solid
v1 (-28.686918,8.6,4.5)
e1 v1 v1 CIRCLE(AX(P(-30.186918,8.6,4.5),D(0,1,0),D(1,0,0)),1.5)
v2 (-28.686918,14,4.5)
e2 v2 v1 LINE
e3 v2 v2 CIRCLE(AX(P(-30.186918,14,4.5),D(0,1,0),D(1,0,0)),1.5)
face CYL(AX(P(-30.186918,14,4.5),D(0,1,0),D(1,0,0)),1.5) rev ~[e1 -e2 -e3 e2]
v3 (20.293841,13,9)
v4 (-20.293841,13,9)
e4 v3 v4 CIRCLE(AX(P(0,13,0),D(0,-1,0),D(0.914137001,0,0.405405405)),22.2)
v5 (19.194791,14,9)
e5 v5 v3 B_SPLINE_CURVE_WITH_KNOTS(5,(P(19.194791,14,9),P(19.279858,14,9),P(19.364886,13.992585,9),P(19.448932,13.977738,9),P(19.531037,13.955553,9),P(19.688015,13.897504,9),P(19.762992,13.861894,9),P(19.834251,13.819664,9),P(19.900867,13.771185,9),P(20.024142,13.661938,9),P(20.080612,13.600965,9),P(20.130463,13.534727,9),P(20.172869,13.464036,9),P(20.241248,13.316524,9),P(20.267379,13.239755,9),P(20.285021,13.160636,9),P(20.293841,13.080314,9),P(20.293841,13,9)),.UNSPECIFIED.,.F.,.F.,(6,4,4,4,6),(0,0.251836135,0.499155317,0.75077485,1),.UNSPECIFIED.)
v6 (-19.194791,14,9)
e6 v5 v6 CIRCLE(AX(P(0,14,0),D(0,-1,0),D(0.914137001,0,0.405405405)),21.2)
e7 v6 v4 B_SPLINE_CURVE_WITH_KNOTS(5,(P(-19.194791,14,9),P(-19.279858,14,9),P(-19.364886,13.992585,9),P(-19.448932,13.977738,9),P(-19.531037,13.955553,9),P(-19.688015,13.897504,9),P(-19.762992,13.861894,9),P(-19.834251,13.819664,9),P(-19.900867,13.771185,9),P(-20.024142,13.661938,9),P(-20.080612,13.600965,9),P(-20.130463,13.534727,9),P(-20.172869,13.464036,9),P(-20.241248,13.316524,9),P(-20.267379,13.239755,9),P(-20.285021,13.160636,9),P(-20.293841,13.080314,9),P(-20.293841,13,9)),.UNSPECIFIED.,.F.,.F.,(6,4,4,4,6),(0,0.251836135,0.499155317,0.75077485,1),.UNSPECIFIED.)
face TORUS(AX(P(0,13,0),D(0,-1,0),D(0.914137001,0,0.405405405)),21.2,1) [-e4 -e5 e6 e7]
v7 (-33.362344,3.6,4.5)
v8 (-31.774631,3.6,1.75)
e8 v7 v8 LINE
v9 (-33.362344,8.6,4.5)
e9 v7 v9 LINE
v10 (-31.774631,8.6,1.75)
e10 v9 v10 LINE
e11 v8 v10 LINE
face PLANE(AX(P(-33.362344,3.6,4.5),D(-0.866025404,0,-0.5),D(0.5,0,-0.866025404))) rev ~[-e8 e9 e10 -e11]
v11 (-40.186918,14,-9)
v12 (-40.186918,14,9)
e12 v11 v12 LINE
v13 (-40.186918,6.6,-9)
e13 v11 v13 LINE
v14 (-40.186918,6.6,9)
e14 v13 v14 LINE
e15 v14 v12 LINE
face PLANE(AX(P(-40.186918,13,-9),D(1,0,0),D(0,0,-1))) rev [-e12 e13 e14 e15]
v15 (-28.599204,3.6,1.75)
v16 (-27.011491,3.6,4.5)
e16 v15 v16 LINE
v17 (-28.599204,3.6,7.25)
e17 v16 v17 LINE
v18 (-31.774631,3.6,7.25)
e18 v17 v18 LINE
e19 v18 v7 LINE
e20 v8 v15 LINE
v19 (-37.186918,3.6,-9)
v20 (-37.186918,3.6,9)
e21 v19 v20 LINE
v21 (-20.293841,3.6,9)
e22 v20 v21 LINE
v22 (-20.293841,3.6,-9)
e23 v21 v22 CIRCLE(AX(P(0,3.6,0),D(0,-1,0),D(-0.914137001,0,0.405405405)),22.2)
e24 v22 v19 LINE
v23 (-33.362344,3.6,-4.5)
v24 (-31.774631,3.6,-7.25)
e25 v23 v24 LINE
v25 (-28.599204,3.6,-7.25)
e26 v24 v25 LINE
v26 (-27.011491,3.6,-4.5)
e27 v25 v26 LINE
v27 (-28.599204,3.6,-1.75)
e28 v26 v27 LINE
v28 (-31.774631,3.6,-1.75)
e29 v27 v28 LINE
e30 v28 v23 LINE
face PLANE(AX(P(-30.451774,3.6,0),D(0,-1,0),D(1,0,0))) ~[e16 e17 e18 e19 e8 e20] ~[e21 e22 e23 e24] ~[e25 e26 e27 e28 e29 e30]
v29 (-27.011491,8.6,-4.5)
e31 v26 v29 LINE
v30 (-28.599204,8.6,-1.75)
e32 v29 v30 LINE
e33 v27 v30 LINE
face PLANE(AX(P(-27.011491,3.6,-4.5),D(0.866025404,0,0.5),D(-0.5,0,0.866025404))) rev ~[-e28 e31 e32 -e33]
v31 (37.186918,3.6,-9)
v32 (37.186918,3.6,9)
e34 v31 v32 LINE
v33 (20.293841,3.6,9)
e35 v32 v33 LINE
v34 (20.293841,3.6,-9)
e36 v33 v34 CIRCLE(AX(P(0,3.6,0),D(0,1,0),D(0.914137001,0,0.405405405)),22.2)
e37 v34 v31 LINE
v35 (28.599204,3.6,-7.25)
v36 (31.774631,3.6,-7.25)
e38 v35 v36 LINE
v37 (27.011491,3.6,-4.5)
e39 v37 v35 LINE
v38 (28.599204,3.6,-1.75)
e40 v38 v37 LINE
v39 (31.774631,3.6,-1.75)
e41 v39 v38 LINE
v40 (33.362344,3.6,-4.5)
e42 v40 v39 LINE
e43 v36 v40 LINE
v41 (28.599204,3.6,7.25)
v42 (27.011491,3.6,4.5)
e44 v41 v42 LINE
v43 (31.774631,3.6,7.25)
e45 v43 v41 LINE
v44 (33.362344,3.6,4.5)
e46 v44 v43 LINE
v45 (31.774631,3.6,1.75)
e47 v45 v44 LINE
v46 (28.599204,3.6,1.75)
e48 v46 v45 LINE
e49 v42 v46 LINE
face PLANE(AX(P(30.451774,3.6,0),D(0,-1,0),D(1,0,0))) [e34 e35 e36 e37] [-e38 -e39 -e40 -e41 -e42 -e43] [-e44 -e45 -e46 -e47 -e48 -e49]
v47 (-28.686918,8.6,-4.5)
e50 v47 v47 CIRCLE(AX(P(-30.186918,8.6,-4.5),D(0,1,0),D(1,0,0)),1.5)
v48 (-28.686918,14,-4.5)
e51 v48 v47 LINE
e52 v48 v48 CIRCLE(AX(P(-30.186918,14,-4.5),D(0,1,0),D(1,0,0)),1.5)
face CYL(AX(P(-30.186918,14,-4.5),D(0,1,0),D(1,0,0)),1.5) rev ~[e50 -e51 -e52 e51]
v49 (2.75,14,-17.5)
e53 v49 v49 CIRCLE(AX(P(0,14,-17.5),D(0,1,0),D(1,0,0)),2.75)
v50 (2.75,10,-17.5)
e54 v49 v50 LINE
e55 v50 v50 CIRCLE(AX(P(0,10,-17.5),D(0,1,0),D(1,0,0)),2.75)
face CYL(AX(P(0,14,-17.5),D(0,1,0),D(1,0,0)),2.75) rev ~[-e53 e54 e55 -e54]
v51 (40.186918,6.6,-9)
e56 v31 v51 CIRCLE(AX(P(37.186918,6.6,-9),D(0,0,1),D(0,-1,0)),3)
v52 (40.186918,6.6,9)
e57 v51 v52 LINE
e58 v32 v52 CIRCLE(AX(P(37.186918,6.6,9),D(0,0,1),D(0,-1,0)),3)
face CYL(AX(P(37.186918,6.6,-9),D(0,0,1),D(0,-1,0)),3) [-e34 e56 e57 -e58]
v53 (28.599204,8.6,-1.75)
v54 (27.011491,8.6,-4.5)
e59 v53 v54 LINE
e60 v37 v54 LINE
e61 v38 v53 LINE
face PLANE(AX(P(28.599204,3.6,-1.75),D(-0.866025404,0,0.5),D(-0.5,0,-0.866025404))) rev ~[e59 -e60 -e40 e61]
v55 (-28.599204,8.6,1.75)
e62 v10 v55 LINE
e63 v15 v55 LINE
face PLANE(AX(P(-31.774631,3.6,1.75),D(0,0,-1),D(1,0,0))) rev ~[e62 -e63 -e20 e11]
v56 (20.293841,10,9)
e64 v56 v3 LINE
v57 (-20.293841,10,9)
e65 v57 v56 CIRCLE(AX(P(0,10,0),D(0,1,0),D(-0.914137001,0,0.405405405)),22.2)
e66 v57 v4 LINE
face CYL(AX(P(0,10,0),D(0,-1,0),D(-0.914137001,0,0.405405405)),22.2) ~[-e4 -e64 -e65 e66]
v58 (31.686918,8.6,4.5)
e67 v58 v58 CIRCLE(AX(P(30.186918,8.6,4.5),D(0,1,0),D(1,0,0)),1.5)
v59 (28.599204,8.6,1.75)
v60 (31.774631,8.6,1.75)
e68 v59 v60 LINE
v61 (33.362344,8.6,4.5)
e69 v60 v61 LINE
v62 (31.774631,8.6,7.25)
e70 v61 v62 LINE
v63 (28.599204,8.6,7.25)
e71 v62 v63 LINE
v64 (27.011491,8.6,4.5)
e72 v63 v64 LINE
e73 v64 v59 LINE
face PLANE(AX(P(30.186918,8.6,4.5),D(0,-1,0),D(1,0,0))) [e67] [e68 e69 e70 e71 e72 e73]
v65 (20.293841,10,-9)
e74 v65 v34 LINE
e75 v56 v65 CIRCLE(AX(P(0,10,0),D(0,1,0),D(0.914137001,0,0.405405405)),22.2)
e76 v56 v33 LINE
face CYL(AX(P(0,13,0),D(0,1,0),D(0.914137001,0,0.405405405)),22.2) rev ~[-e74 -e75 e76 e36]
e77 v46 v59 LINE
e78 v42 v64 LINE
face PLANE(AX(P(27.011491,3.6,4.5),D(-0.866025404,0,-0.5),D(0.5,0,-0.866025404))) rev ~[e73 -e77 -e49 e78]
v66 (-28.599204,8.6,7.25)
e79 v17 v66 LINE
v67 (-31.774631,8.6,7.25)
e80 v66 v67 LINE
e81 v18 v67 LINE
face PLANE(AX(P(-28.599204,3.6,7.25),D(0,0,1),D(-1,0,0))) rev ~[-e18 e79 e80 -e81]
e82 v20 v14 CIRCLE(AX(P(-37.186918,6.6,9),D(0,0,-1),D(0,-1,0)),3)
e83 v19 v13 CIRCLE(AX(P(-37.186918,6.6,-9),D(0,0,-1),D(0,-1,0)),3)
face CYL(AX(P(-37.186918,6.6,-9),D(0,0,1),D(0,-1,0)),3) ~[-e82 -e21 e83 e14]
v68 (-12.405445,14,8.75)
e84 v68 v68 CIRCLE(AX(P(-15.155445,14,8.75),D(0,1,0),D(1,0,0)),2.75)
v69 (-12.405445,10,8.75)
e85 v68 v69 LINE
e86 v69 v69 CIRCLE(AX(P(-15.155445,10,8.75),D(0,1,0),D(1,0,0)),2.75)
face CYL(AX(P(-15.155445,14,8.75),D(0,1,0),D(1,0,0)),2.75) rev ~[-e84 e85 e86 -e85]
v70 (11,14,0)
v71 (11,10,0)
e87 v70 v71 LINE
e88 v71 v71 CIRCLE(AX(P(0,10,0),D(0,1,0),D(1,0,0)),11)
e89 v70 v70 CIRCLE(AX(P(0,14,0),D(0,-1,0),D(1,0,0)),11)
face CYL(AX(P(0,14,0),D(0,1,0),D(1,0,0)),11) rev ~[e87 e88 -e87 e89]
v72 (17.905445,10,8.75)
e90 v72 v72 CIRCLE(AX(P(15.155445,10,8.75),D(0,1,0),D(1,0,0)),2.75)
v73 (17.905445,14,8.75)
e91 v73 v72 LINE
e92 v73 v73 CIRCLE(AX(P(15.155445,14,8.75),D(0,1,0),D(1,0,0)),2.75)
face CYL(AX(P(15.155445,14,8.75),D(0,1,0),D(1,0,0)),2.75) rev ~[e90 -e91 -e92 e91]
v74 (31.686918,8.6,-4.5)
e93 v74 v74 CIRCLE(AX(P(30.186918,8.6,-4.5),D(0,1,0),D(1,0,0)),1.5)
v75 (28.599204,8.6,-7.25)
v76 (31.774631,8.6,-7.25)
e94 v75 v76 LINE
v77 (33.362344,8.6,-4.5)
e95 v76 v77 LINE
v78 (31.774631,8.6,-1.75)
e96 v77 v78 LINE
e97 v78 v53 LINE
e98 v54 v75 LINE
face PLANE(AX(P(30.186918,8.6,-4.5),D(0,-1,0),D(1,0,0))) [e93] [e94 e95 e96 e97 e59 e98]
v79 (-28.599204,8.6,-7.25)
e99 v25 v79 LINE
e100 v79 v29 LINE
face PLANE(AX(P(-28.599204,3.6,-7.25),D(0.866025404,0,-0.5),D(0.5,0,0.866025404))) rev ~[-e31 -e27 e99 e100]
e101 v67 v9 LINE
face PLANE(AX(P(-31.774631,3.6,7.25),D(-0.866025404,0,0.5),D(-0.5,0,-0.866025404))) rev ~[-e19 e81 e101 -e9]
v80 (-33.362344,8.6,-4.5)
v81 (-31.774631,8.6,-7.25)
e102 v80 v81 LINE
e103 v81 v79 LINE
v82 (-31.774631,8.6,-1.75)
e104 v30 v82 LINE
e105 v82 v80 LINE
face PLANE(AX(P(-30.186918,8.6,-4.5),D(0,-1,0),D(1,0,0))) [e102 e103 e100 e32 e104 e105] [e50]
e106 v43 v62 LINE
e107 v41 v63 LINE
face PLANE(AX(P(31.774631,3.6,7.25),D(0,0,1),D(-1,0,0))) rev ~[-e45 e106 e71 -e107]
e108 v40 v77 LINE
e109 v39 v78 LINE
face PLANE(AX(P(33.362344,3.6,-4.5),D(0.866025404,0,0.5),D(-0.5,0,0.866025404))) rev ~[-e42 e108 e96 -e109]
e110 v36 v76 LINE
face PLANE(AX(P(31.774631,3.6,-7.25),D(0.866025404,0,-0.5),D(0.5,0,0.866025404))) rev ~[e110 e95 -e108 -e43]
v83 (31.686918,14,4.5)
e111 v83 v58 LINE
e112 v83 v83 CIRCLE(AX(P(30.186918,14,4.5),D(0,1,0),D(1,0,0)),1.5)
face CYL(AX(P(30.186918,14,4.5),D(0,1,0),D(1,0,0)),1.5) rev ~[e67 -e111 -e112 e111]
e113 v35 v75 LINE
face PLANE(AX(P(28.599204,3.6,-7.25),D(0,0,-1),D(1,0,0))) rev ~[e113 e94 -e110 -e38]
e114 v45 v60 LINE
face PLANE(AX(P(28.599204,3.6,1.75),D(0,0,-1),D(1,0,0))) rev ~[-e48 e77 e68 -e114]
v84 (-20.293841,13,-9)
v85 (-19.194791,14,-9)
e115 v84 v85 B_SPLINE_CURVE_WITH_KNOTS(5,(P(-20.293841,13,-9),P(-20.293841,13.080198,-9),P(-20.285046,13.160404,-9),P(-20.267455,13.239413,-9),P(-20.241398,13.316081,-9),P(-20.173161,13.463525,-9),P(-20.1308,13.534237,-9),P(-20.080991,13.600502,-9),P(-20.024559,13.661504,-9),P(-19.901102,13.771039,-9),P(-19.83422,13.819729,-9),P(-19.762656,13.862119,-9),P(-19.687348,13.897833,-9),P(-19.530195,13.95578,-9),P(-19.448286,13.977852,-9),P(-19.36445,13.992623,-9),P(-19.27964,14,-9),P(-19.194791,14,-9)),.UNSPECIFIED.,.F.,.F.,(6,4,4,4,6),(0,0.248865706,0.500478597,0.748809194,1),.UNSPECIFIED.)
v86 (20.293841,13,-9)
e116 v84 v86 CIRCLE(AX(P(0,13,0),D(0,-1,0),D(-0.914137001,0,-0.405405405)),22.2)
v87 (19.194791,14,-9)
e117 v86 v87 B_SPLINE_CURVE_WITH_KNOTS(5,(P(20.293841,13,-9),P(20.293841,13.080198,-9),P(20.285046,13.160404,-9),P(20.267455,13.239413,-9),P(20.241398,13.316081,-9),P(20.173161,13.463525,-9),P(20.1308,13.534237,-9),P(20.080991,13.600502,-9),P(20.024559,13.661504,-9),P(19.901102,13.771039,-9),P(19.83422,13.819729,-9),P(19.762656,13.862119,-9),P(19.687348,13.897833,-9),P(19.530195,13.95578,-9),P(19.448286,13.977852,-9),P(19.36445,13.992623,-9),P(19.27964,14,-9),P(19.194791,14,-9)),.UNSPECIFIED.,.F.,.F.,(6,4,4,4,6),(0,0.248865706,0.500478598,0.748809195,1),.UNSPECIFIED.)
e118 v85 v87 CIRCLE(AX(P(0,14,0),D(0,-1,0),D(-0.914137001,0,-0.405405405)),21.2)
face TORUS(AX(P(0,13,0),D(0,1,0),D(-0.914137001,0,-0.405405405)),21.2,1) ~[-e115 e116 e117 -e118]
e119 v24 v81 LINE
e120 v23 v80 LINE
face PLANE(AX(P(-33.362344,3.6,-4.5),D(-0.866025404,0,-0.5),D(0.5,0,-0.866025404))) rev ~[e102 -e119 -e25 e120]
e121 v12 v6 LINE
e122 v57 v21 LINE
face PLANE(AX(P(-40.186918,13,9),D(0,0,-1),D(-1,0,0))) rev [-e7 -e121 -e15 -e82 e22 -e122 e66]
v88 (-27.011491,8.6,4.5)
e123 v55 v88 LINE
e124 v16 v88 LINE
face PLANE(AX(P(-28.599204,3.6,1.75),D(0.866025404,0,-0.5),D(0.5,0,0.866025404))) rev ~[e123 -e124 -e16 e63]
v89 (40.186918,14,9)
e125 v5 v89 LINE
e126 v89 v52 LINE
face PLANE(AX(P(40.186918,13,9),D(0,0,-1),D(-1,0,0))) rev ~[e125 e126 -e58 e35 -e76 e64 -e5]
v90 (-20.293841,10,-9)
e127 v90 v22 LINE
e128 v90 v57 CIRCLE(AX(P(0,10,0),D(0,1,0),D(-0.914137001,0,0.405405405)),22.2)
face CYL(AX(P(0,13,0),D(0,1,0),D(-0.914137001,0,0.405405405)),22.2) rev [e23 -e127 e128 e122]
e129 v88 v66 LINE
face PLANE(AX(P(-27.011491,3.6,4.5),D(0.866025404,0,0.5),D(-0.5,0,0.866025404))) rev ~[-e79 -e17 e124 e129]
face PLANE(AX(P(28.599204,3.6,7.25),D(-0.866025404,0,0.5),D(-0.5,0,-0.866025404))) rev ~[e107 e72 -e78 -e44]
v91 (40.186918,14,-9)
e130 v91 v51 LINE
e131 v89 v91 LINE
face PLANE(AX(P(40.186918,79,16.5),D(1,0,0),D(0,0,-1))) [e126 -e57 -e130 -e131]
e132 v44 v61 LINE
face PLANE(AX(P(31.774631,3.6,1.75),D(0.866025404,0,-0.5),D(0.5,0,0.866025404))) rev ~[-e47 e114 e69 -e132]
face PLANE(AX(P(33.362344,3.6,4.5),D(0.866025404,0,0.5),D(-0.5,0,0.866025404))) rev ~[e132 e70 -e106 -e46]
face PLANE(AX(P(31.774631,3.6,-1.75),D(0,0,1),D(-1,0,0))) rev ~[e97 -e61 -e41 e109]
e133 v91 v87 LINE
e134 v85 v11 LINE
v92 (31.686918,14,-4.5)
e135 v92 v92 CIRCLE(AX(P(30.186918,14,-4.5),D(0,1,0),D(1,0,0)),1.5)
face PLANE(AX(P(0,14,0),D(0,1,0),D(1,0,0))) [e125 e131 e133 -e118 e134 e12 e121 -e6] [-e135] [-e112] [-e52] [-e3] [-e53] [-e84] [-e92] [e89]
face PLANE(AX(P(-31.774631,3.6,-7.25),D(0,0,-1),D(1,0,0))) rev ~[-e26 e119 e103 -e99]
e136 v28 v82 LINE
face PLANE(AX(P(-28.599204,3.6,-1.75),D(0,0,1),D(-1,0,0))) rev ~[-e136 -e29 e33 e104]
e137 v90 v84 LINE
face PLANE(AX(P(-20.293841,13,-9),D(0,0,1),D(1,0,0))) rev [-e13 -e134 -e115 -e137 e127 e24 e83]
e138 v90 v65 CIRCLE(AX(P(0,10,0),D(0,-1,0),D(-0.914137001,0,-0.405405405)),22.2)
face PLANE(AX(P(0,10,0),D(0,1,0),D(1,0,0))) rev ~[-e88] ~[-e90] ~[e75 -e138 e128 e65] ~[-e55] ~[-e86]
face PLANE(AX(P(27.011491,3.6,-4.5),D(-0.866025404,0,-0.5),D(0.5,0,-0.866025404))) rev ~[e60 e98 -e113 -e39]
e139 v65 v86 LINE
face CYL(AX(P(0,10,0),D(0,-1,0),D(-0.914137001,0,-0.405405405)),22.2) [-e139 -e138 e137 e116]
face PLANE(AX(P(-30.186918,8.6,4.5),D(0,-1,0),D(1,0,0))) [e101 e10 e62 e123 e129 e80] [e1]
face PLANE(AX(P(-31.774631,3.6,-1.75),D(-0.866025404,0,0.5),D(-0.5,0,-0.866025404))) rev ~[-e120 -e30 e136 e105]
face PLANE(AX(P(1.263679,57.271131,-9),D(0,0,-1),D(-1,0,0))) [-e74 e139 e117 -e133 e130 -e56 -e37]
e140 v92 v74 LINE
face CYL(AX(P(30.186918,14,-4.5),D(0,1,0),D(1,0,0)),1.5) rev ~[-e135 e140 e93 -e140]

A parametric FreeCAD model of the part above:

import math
import FreeCAD as App
import Part
import Sketcher
Q = App.Units.Quantity


def edges_at(feature, points):
    """Names of the edges that pass closest to the given points."""
    edges = feature.Shape.Edges
    near = lambda p: min(range(len(edges)), key=lambda i: edges[i].distToShape(Part.Vertex(*p))[0])
    return sorted({f"Edge{near(p) + 1}" for p in points})


def add_polygon(sketch, points):
    """Adds a closed chain of lines whose ends are joined by coincident constraints."""
    first, n = sketch.GeometryCount, len(points)
    for a, b in zip(points, points[1:] + points[:1]):
        sketch.addGeometry(Part.LineSegment(App.Vector(*a, 0), App.Vector(*b, 0)), False)
    for i in range(n):
        sketch.addConstraint(Sketcher.Constraint("Coincident", first + i, 2, first + (i + 1) % n, 1))

doc = App.newDocument("Part")
body = doc.addObject("PartDesign::Body", "Body")

sketch1 = body.newObject("Sketcher::SketchObject", "Sketch")
sketch1.AttachmentSupport = (doc.getObject("XZ_Plane"), [""])
sketch1.MapMode = "FlatFace"
sketch1.addGeometry([
    Part.Circle(App.Vector(0, 0, 0), App.Vector(0, 0, 1), 17),
    Part.Circle(App.Vector(0, 0, 0), App.Vector(0, 0, 1), 12),
], False)
sketch1.addConstraint([
    Sketcher.Constraint("Coincident", 0, 3, -1, 1),
    Sketcher.Constraint("Coincident", 1, 3, -1, 1),
    Sketcher.Constraint("Diameter", 0, Q("34.9 mm")),
    Sketcher.Constraint("Diameter", 1, Q("24.9 mm")),
])
pad1 = body.newObject("PartDesign::Pad", "Pad")
pad1.Profile = sketch1
pad1.Length = 8
pad1.Reversed = True

sketch2 = body.newObject("Sketcher::SketchObject", "Sketch001")
sketch2.AttachmentSupport = (doc.getObject("XZ_Plane"), [""])
sketch2.MapMode = "FlatFace"
sketch2.AttachmentOffset = App.Placement(App.Vector(0, 0, -8), App.Rotation())
sketch2.addGeometry([
    Part.Circle(App.Vector(0, 0, 0), App.Vector(0, 0, 1), 20),
    Part.Circle(App.Vector(0, 0, 0), App.Vector(0, 0, 1), 12),
], False)
sketch2.addConstraint([
    Sketcher.Constraint("Coincident", 0, 3, -1, 1),
    Sketcher.Constraint("Coincident", 1, 3, -1, 1),
    Sketcher.Constraint("Diameter", 0, Q("40 mm")),
    Sketcher.Constraint("Diameter", 1, Q("24.9 mm")),
])
pad2 = body.newObject("PartDesign::Pad", "Pad001")
pad2.Profile = sketch2
pad2.Length = 2
pad2.Reversed = True

sketch3 = body.newObject("Sketcher::SketchObject", "Sketch002")
sketch3.AttachmentSupport = (doc.getObject("XZ_Plane"), [""])
sketch3.MapMode = "FlatFace"
sketch3.AttachmentOffset = App.Placement(App.Vector(0, 0, -10), App.Rotation())
sketch3.addGeometry([
    Part.Circle(App.Vector(0, 0, 0), App.Vector(0, 0, 1), 32),
    Part.Circle(App.Vector(0, 0, 0), App.Vector(0, 0, 1), 12),
], False)
sketch3.addConstraint([
    Sketcher.Constraint("Coincident", 0, 3, -1, 1),
    Sketcher.Constraint("Coincident", 1, 3, -1, 1),
    Sketcher.Constraint("Diameter", 0, Q("65 mm")),
    Sketcher.Constraint("Diameter", 1, Q("24.9 mm")),
])
pad3 = body.newObject("PartDesign::Pad", "Pad002")
pad3.Profile = sketch3
pad3.Length = 4
pad3.Reversed = True
doc.recompute()

fillet = body.newObject("PartDesign::Fillet", "Fillet")
fillet.Base = (pad3, edges_at(pad3, [(-32.5, 14, 0)]))
fillet.Radius = 1

sketch4 = body.newObject("Sketcher::SketchObject", "Sketch003")
sketch4.AttachmentSupport = (doc.getObject("XZ_Plane"), [""])
sketch4.MapMode = "FlatFace"
sketch4.AttachmentOffset = App.Placement(App.Vector(0, 0, -10), App.Rotation())
add_polygon(sketch4, [(30, -9), (30, 9), (40, 9), (40, -9)])
add_polygon(sketch4, [(-40, -9), (-40, 9), (-30, 9), (-30, -9)])
sketch4.addConstraint([
    Sketcher.Constraint("Vertical", 0),
    Sketcher.Constraint("Horizontal", 1),
    Sketcher.Constraint("Vertical", 2),
    Sketcher.Constraint("Horizontal", 3),
    Sketcher.Constraint("Vertical", 4),
    Sketcher.Constraint("Horizontal", 5),
    Sketcher.Constraint("Vertical", 6),
    Sketcher.Constraint("Horizontal", 7),
    Sketcher.Constraint("Symmetric", 2, 2, 4, 2, -1, 1),
    Sketcher.Constraint("Symmetric", 0, 2, 6, 2, -1, 1),
    Sketcher.Constraint("Horizontal", 1, 2, 4, 2),
    Sketcher.Constraint("DistanceX", 1, 1, 1, 2, Q("10 mm")),
    Sketcher.Constraint("DistanceY", 0, 1, 0, 2, Q("18 mm")),
    Sketcher.Constraint("DistanceX", -1, 1, 0, 2, Q("30.186918 mm")),
])
pad4 = body.newObject("PartDesign::Pad", "Pad003")
pad4.Profile = sketch4
pad4.Length = 4
pad4.Reversed = True

sketch5 = body.newObject("Sketcher::SketchObject", "Sketch004")
sketch5.AttachmentSupport = (doc.getObject("XZ_Plane"), [""])
sketch5.MapMode = "FlatFace"
sketch5.AttachmentOffset = App.Placement(App.Vector(0, 0, -14), App.Rotation())
add_polygon(sketch5, [(-40, -9), (-40, 9), (-34, 9), (-34, -9)])
add_polygon(sketch5, [(34, -9), (34, 9), (40, 9), (40, -9)])
sketch5.addConstraint([
    Sketcher.Constraint("Vertical", 0),
    Sketcher.Constraint("Horizontal", 1),
    Sketcher.Constraint("Vertical", 2),
    Sketcher.Constraint("Horizontal", 3),
    Sketcher.Constraint("Vertical", 4),
    Sketcher.Constraint("Horizontal", 5),
    Sketcher.Constraint("Vertical", 6),
    Sketcher.Constraint("Horizontal", 7),
    Sketcher.Constraint("Symmetric", 2, 2, 4, 2, -1, 1),
    Sketcher.Constraint("Symmetric", 0, 2, 6, 2, -1, 1),
    Sketcher.Constraint("Horizontal", 1, 2, 4, 2),
    Sketcher.Constraint("DistanceX", 1, 1, 1, 2, Q("6 mm")),
    Sketcher.Constraint("DistanceY", 0, 1, 0, 2, Q("18 mm")),
    Sketcher.Constraint("DistanceX", 0, 2, -1, 1, Q("40.186918 mm")),
])
pad5 = body.newObject("PartDesign::Pad", "Pad004")
pad5.Profile = sketch5
pad5.Type = "TwoLengths"
pad5.Length = 75
pad5.Length2 = 4
pad5.Reversed = True

sketch6 = body.newObject("Sketcher::SketchObject", "Sketch005")
sketch6.AttachmentSupport = (doc.getObject("YZ_Plane"), [""])
sketch6.MapMode = "FlatFace"
sketch6.AttachmentOffset = App.Placement(App.Vector(0, 0, 34.186918), App.Rotation())
sketch6.addGeometry(Part.Circle(App.Vector(79, 0, 0), App.Vector(0, 0, 1), 5), False)
sketch6.addConstraint([
    Sketcher.Constraint("PointOnObject", 0, 3, -1),
    Sketcher.Constraint("Diameter", 0, Q("10.1 mm")),
    Sketcher.Constraint("DistanceX", -1, 1, 0, 3, Q("79 mm")),
])
pocket1 = body.newObject("PartDesign::Pocket", "Pocket")
pocket1.Profile = sketch6
pocket1.Type = "ThroughAll"
pocket1.Midplane = True

sketch7 = body.newObject("Sketcher::SketchObject", "Sketch006")
sketch7.AttachmentSupport = (doc.getObject("XY_Plane"), [""])
sketch7.MapMode = "FlatFace"
sketch7.AttachmentOffset = App.Placement(App.Vector(0, 0, -9), App.Rotation())
add_polygon(sketch7, [(-34, 76), (-34, 66), (-40, 66), (-40, 76)])
sketch7.addConstraint([
    Sketcher.Constraint("Vertical", 0),
    Sketcher.Constraint("Horizontal", 1),
    Sketcher.Constraint("Vertical", 2),
    Sketcher.Constraint("Horizontal", 3),
    Sketcher.Constraint("DistanceX", 1, 2, 1, 1, Q("6 mm")),
    Sketcher.Constraint("DistanceY", 0, 2, 0, 1, Q("10 mm")),
    Sketcher.Constraint("DistanceY", -1, 1, 0, 2, Q("65.95 mm")),
    Sketcher.Constraint("DistanceX", 0, 2, -1, 1, Q("34.186918 mm")),
])
pad6 = body.newObject("PartDesign::Pad", "Pad005")
pad6.Profile = sketch7
pad6.Type = "TwoLengths"
pad6.Length = 15
pad6.Length2 = 32.85
pad6.Reversed = True

sketch8 = body.newObject("Sketcher::SketchObject", "Sketch007")
sketch8.AttachmentSupport = (doc.getObject("YZ_Plane"), [""])
sketch8.MapMode = "FlatFace"
sketch8.AttachmentOffset = App.Placement(App.Vector(0, 0, -34.186918), App.Rotation())
sketch8.addGeometry([
    Part.Circle(App.Vector(71, 17.5, 0), App.Vector(0, 0, 1), 1.6),
    Part.Circle(App.Vector(71, -17.5, 0), App.Vector(0, 0, 1), 1.6),
], False)
sketch8.addConstraint([
    Sketcher.Constraint("Symmetric", 0, 3, 1, 3, -1),
    Sketcher.Constraint("DistanceX", -1, 1, 0, 3, Q("71 mm")),
    Sketcher.Constraint("DistanceY", 1, 3, 0, 3, Q("35 mm")),
    Sketcher.Constraint("Diameter", 0, Q("3.258441 mm")),
    Sketcher.Constraint("Diameter", 1, Q("3.160518 mm")),
])
pocket2 = body.newObject("PartDesign::Pocket", "Pocket001")
pocket2.Profile = sketch8
pocket2.Length = 10

sketch9 = body.newObject("Sketcher::SketchObject", "Sketch008")
sketch9.AttachmentSupport = (doc.getObject("YZ_Plane"), [""])
sketch9.MapMode = "FlatFace"
sketch9.AttachmentOffset = App.Placement(App.Vector(0, 0, -34.186918), App.Rotation())
sketch9.addGeometry(Part.Circle(App.Vector(79, 0, 0), App.Vector(0, 0, 1), 5), False)
sketch9.addConstraint([
    Sketcher.Constraint("PointOnObject", 0, 3, -1),
    Sketcher.Constraint("Diameter", 0, Q("10.1 mm")),
    Sketcher.Constraint("DistanceX", -1, 1, 0, 3, Q("79 mm")),
])
pocket3 = body.newObject("PartDesign::Pocket", "Pocket002")
pocket3.Profile = sketch9
pocket3.Type = "ThroughAll"
pocket3.Midplane = True

sketch10 = body.newObject("Sketcher::SketchObject", "Sketch009")
sketch10.AttachmentSupport = (doc.getObject("YZ_Plane"), [""])
sketch10.MapMode = "FlatFace"
sketch10.AttachmentOffset = App.Placement(App.Vector(0, 0, 34.186918), App.Rotation())
add_polygon(sketch10, [(17.2, -4.9), (14, -4.9), (14, 4.9), (17.2, 4.9)])
sketch10.addConstraint([
    Sketcher.Constraint("Horizontal", 0),
    Sketcher.Constraint("Vertical", 1),
    Sketcher.Constraint("Horizontal", 2),
    Sketcher.Constraint("Vertical", 3),
    Sketcher.Constraint("DistanceX", -1, 1, 0, 2, Q("14 mm")),
    Sketcher.Constraint("DistanceY", 0, 2, -1, 1, Q("4.891298 mm")),
    Sketcher.Constraint("DistanceY", -1, 1, 1, 2, Q("4.891298 mm")),
    Sketcher.Constraint("DistanceX", 0, 2, 0, 1, Q("3.234518 mm")),
])
pocket4 = body.newObject("PartDesign::Pocket", "Pocket003")
pocket4.Profile = sketch10
pocket4.Type = "ThroughAll"
pocket4.Midplane = True
doc.recompute()

fillet2 = body.newObject("PartDesign::Fillet", "Fillet001")
fillet2.Base = (pocket4, edges_at(pocket4, [
    (-37.187, 65.95, 23.85),
    (-37.187, 75.95, 23.85),
    (-37.187, 65.95, -24),
    (-37.187, 75.95, -24),
    (-37.187, 89, -9),
    (-37.187, 89, 9),
]))
fillet2.Radius = 3
doc.recompute()

fillet3 = body.newObject("PartDesign::Fillet", "Fillet002")
fillet3.Base = (fillet2, edges_at(fillet2, [(40.187, 10, 0), (-40.187, 10, 0)]))
fillet3.Radius = 3

sketch11 = body.newObject("Sketcher::SketchObject", "Sketch010")
sketch11.AttachmentSupport = (doc.getObject("YZ_Plane"), [""])
sketch11.MapMode = "FlatFace"
sketch11.AttachmentOffset = App.Placement(App.Vector(0, 0, 40.186918), App.Rotation())
add_polygon(sketch11, [(10, 67), (-14, 67), (-14, -42), (10, -42)])
sketch11.addConstraint([
    Sketcher.Constraint("Horizontal", 0),
    Sketcher.Constraint("Vertical", 1),
    Sketcher.Constraint("Horizontal", 2),
    Sketcher.Constraint("Vertical", 3),
    Sketcher.Constraint("DistanceX", -1, 1, 2, 2, Q("10 mm")),
    Sketcher.Constraint("DistanceY", 1, 2, 1, 1, Q("108.791398 mm")),
    Sketcher.Constraint("DistanceX", 0, 2, 0, 1, Q("24.041848 mm")),
    Sketcher.Constraint("DistanceY", 1, 2, -1, 1, Q("41.892781 mm")),
])
pocket5 = body.newObject("PartDesign::Pocket", "Pocket004")
pocket5.Profile = sketch11
pocket5.Length = 110.678

sketch12 = body.newObject("Sketcher::SketchObject", "Sketch011")
sketch12.AttachmentSupport = (doc.getObject("XZ_Plane"), [""])
sketch12.MapMode = "FlatFace"
sketch12.AttachmentOffset = App.Placement(App.Vector(0, 0, -14), App.Rotation())
sketch12.addGeometry(Part.Circle(App.Vector(0, 0, 0), App.Vector(0, 0, 1), 22), False)
sketch12.addConstraint([
    Sketcher.Constraint("Coincident", 0, 3, -1, 1),
    Sketcher.Constraint("Diameter", 0, Q("44 mm")),
])
pocket6 = body.newObject("PartDesign::Pocket", "Pocket005")
pocket6.Profile = sketch12
pocket6.Length = 4
pocket6.Reversed = True

sketch13 = body.newObject("Sketcher::SketchObject", "Sketch012")
sketch13.AttachmentSupport = (doc.getObject("XZ_Plane"), [""])
sketch13.MapMode = "FlatFace"
sketch13.AttachmentOffset = App.Placement(App.Vector(0, 0, -14), App.Rotation())
sketch13.addGeometry([
    Part.Circle(App.Vector(0, 0, 0), App.Vector(0, 0, 1), 22),
    Part.Circle(App.Vector(-15.2, 8.8, 0), App.Vector(0, 0, 1), 2.8),
    Part.Circle(App.Vector(15.2, 8.8, 0), App.Vector(0, 0, 1), 2.8),
    Part.Circle(App.Vector(0, 0, 0), App.Vector(0, 0, 1), 11),
    Part.Circle(App.Vector(0, -17.5, 0), App.Vector(0, 0, 1), 2.8),
], False)
sketch13.addConstraint([
    Sketcher.Constraint("Coincident", 0, 3, -1, 1),
    Sketcher.Constraint("Coincident", 3, 3, -1, 1),
    Sketcher.Constraint("Equal", 1, 2),
    Sketcher.Constraint("Equal", 2, 4),
    Sketcher.Constraint("Symmetric", 1, 3, 2, 3, -2),
    Sketcher.Constraint("PointOnObject", 4, 3, -2),
    Sketcher.Constraint("Diameter", 0, Q("44 mm")),
    Sketcher.Constraint("Diameter", 3, Q("22 mm")),
    Sketcher.Constraint("Diameter", 1, Q("5.5 mm")),
    Sketcher.Constraint("DistanceY", 4, 3, -1, 1, Q("17.5 mm")),
    Sketcher.Constraint("DistanceY", -1, 1, 1, 3, Q("8.75 mm")),
    Sketcher.Constraint("DistanceX", 1, 3, 2, 3, Q("30.310889 mm")),
])
pad7 = body.newObject("PartDesign::Pad", "Pad006")
pad7.Profile = sketch13
pad7.Length = 4
doc.recompute()

fillet4 = body.newObject("PartDesign::Fillet", "Fillet003")
fillet4.Base = (pad7, edges_at(pad7, [(37.187, 89, 9), (37.187, 89, -9)]))
fillet4.Radius = 3

sketch14 = body.newObject("Sketcher::SketchObject", "Sketch013")
sketch14.AttachmentSupport = (doc.getObject("XZ_Plane"), [""])
sketch14.MapMode = "FlatFace"
sketch14.AttachmentOffset = App.Placement(App.Vector(0, 0, -10), App.Rotation())
sketch14.addGeometry([
    Part.LineSegment(App.Vector(-31, 9, 0), App.Vector(-20, 9, 0)),
    Part.ArcOfCircle(Part.Circle(App.Vector(0, 0, 0), App.Vector(0, 0, 1), 22), math.radians(24), math.radians(156)),
    Part.LineSegment(App.Vector(20, 9, 0), App.Vector(31, 9, 0)),
    Part.ArcOfCircle(Part.Circle(App.Vector(0, 0, 0), App.Vector(0, 0, 1), 32), math.radians(16), math.radians(164)),
], False)
sketch14.addConstraint([
    Sketcher.Constraint("Coincident", 0, 2, 1, 2),
    Sketcher.Constraint("Coincident", 1, 1, 2, 1),
    Sketcher.Constraint("Coincident", 2, 2, 3, 1),
    Sketcher.Constraint("Coincident", 3, 2, 0, 1),
    Sketcher.Constraint("Horizontal", 0),
    Sketcher.Constraint("Horizontal", 2),
    Sketcher.Constraint("Coincident", 1, 3, -1, 1),
    Sketcher.Constraint("Coincident", 3, 3, -1, 1),
    Sketcher.Constraint("Horizontal", 0, 2, 1, 1),
    Sketcher.Constraint("Radius", 1, Q("22.2 mm")),
    Sketcher.Constraint("Radius", 3, Q("32.5 mm")),
    Sketcher.Constraint("DistanceY", -1, 1, 0, 2, Q("9 mm")),
])
pocket7 = body.newObject("PartDesign::Pocket", "Pocket006")
pocket7.Profile = sketch14
pocket7.Length = 5
doc.recompute()

mirrored = body.newObject("PartDesign::Mirrored", "Mirrored")
mirrored.Originals = [pocket7]
mirrored.MirrorPlane = (doc.getObject("XY_Plane"), [""])
body.Tip = mirrored
doc.recompute()

fillet5 = body.newObject("PartDesign::Fillet", "Fillet004")
fillet5.Base = (mirrored, edges_at(mirrored, [(0, 14, 22.2), (0, 14, -22.2)]))
fillet5.Radius = 1

sketch15 = body.newObject("Sketcher::SketchObject", "Sketch014")
sketch15.AttachmentSupport = (doc.getObject("XZ_Plane"), [""])
sketch15.MapMode = "FlatFace"
sketch15.AttachmentOffset = App.Placement(App.Vector(0, 0, -13), App.Rotation())
sketch15.addGeometry([
    Part.LineSegment(App.Vector(20, -9, 0), App.Vector(40, -9, 0)),
    Part.LineSegment(App.Vector(40, -9, 0), App.Vector(40, 9, 0)),
    Part.LineSegment(App.Vector(40, 9, 0), App.Vector(20, 9, 0)),
    Part.ArcOfCircle(Part.Circle(App.Vector(0, 0, 0), App.Vector(0, 0, 1), 22), math.radians(-24), math.radians(24)),
], False)
sketch15.addConstraint([
    Sketcher.Constraint("Coincident", 0, 2, 1, 1),
    Sketcher.Constraint("Coincident", 1, 2, 2, 1),
    Sketcher.Constraint("Coincident", 2, 2, 3, 2),
    Sketcher.Constraint("Coincident", 3, 1, 0, 1),
    Sketcher.Constraint("Horizontal", 0),
    Sketcher.Constraint("Vertical", 1),
    Sketcher.Constraint("Horizontal", 2),
    Sketcher.Constraint("Coincident", 3, 3, -1, 1),
    Sketcher.Constraint("Vertical", 2, 2, 3, 1),
    Sketcher.Constraint("Radius", 3, Q("22.2 mm")),
    Sketcher.Constraint("DistanceY", 1, 1, 1, 2, Q("18 mm")),
    Sketcher.Constraint("DistanceX", 0, 1, 0, 2, Q("19.893076 mm")),
])
pad8 = body.newObject("PartDesign::Pad", "Pad007")
pad8.Profile = sketch15
pad8.Length = 9.4
doc.recompute()

fillet6 = body.newObject("PartDesign::Fillet", "Fillet005")
fillet6.Base = (pad8, edges_at(pad8, [(40.187, 3.6, 0)]))
fillet6.Radius = 3
doc.recompute()

mirrored2 = body.newObject("PartDesign::Mirrored", "Mirrored001")
mirrored2.Originals = [pad8]
mirrored2.MirrorPlane = (doc.getObject("YZ_Plane"), [""])
body.Tip = mirrored2
doc.recompute()

fillet7 = body.newObject("PartDesign::Fillet", "Fillet006")
fillet7.Base = (mirrored2, edges_at(mirrored2, [(-40.187, 3.6, 0)]))
fillet7.Radius = 3

sketch16 = body.newObject("Sketcher::SketchObject", "Sketch015")
sketch16.AttachmentSupport = (doc.getObject("YZ_Plane"), [""])
sketch16.MapMode = "FlatFace"
sketch16.AttachmentOffset = App.Placement(App.Vector(0, 0, 34.186918), App.Rotation())
sketch16.addGeometry(Part.Circle(App.Vector(79, 0, 0), App.Vector(0, 0, 1), 6), False)
sketch16.addConstraint([
    Sketcher.Constraint("PointOnObject", 0, 3, -1),
    Sketcher.Constraint("Diameter", 0, Q("12.1 mm")),
    Sketcher.Constraint("DistanceX", -1, 1, 0, 3, Q("79 mm")),
])
pocket8 = body.newObject("PartDesign::Pocket", "Pocket007")
pocket8.Profile = sketch16
pocket8.Length = 3.8
pocket8.Reversed = True

sketch17 = body.newObject("Sketcher::SketchObject", "Sketch016")
sketch17.AttachmentSupport = (doc.getObject("YZ_Plane"), [""])
sketch17.MapMode = "FlatFace"
sketch17.AttachmentOffset = App.Placement(App.Vector(0, 0, 40.186918), App.Rotation())
add_polygon(sketch17, [(99, 44), (79, 44), (79, -44), (99, -44)])
sketch17.addConstraint([
    Sketcher.Constraint("Horizontal", 0),
    Sketcher.Constraint("Vertical", 1),
    Sketcher.Constraint("Horizontal", 2),
    Sketcher.Constraint("Vertical", 3),
    Sketcher.Constraint("DistanceX", -1, 1, 0, 2, Q("79 mm")),
    Sketcher.Constraint("DistanceX", 0, 2, 0, 1, Q("20.386854 mm")),
    Sketcher.Constraint("DistanceY", 1, 2, 1, 1, Q("88.746976 mm")),
    Sketcher.Constraint("DistanceY", -1, 1, 0, 2, Q("44.373488 mm")),
])
pocket9 = body.newObject("PartDesign::Pocket", "Pocket008")
pocket9.Profile = sketch17
pocket9.Length = 10

sketch18 = body.newObject("Sketcher::SketchObject", "Sketch017")
sketch18.AttachmentSupport = (doc.getObject("XZ_Plane"), [""])
sketch18.MapMode = "FlatFace"
sketch18.AttachmentOffset = App.Placement(App.Vector(0, 0, -79), App.Rotation())
add_polygon(sketch18, [(34, 6), (34, 16), (40, 16), (40, 6)])
add_polygon(sketch18, [(34, -16), (34, -6), (40, -6), (40, -16)])
sketch18.addConstraint([
    Sketcher.Constraint("Vertical", 0),
    Sketcher.Constraint("Horizontal", 1),
    Sketcher.Constraint("Vertical", 2),
    Sketcher.Constraint("Horizontal", 3),
    Sketcher.Constraint("Vertical", 4),
    Sketcher.Constraint("Horizontal", 5),
    Sketcher.Constraint("Vertical", 6),
    Sketcher.Constraint("Horizontal", 7),
    Sketcher.Constraint("Symmetric", 3, 2, 4, 2, -1),
    Sketcher.Constraint("Symmetric", 1, 2, 6, 2, -1),
    Sketcher.Constraint("DistanceX", 1, 1, 1, 2, Q("6 mm")),
    Sketcher.Constraint("DistanceY", 6, 2, 1, 2, Q("33 mm")),
    Sketcher.Constraint("DistanceY", 0, 1, 0, 2, Q("10.45 mm")),
    Sketcher.Constraint("DistanceX", -1, 1, 0, 2, Q("34.186918 mm")),
])
pad9 = body.newObject("PartDesign::Pad", "Pad008")
pad9.Profile = sketch18
pad9.Length = 5
doc.recompute()

fillet8 = body.newObject("PartDesign::Fillet", "Fillet007")
fillet8.Base = (pad9, edges_at(pad9, [(37.187, 74, 16.5), (37.187, 74, -16.5)]))
fillet8.Radius = 2

sketch19 = body.newObject("Sketcher::SketchObject", "Sketch018")
sketch19.AttachmentSupport = (doc.getObject("YZ_Plane"), [""])
sketch19.MapMode = "FlatFace"
sketch19.AttachmentOffset = App.Placement(App.Vector(0, 0, -34.186918), App.Rotation())
add_polygon(sketch19, [(68.4, 16), (71, 14.5), (73.6, 16), (73.6, 19), (71, 20.5), (68.4, 19)])
add_polygon(sketch19, [(71, -20.5), (73.6, -19), (73.6, -16), (71, -14.5), (68.4, -16), (68.4, -19)])
sketch19.addConstraint([
    Sketcher.Constraint("Vertical", 2),
    Sketcher.Constraint("Vertical", 5),
    Sketcher.Constraint("Vertical", 7),
    Sketcher.Constraint("Vertical", 10),
    Sketcher.Constraint("Symmetric", 2, 2, 6, 2, -1),
    Sketcher.Constraint("Symmetric", 0, 2, 8, 2, -1),
    Sketcher.Constraint("Symmetric", 5, 2, 9, 2, -1),
    Sketcher.Constraint("Symmetric", 3, 2, 11, 2, -1),
    Sketcher.Constraint("Parallel", 0, 3),
    Sketcher.Constraint("Parallel", 1, 4),
    Sketcher.Constraint("Parallel", 4, 6),
    Sketcher.Constraint("Parallel", 3, 8),
    Sketcher.Constraint("Parallel", 8, 11),
    Sketcher.Constraint("Horizontal", 2, 2, 4, 2),
    Sketcher.Constraint("Horizontal", 1, 2, 5, 2),
    Sketcher.Constraint("Angle", 0, Q("-30 deg")),
    Sketcher.Constraint("DistanceX", -1, 1, 0, 2, Q("71 mm")),
    Sketcher.Constraint("DistanceY", 6, 2, 1, 2, Q("35 mm")),
    Sketcher.Constraint("DistanceX", -1, 1, 1, 2, Q("73.6 mm")),
    Sketcher.Constraint("DistanceY", 2, 1, 2, 2, Q("3.002221 mm")),
])
pocket10 = body.newObject("PartDesign::Pocket", "Pocket009")
pocket10.Profile = sketch19
pocket10.Length = 2

sketch20 = body.newObject("Sketcher::SketchObject", "Sketch019")
sketch20.AttachmentSupport = (doc.getObject("XZ_Plane"), [""])
sketch20.MapMode = "FlatFace"
sketch20.AttachmentOffset = App.Placement(App.Vector(0, 0, -79), App.Rotation())
sketch20.addGeometry([
    Part.Circle(App.Vector(37.2, 12.3, 0), App.Vector(0, 0, 1), 1),
    Part.Circle(App.Vector(37.2, -12.3, 0), App.Vector(0, 0, 1), 1),
], False)
sketch20.addConstraint([
    Sketcher.Constraint("Equal", 0, 1),
    Sketcher.Constraint("Symmetric", 0, 3, 1, 3, -1),
    Sketcher.Constraint("Diameter", 0, Q("2 mm")),
    Sketcher.Constraint("DistanceY", -1, 1, 0, 3, Q("12.3 mm")),
    Sketcher.Constraint("DistanceX", -1, 1, 0, 3, Q("37.186918 mm")),
])
pocket11 = body.newObject("PartDesign::Pocket", "Pocket010")
pocket11.Profile = sketch20
pocket11.Length = 11
pocket11.Reversed = True

sketch21 = body.newObject("Sketcher::SketchObject", "Sketch020")
sketch21.AttachmentSupport = (doc.getObject("XZ_Plane"), [""])
sketch21.MapMode = "FlatFace"
sketch21.AttachmentOffset = App.Placement(App.Vector(0, 0, -74), App.Rotation())
add_polygon(sketch21, [(37.2, 10), (39.2, 11.1), (39.2, 13.5), (37.2, 14.6), (35.2, 13.5), (35.2, 11.1)])
add_polygon(sketch21, [(37.2, -14.6), (39.2, -13.5), (39.2, -11.1), (37.2, -10), (35.2, -11.1), (35.2, -13.5)])
sketch21.addConstraint([
    Sketcher.Constraint("Vertical", 1),
    Sketcher.Constraint("Vertical", 4),
    Sketcher.Constraint("Vertical", 7),
    Sketcher.Constraint("Vertical", 10),
    Sketcher.Constraint("Symmetric", 1, 2, 6, 2, -1),
    Sketcher.Constraint("Symmetric", 5, 2, 8, 2, -1),
    Sketcher.Constraint("Symmetric", 4, 2, 9, 2, -1),
    Sketcher.Constraint("Symmetric", 2, 2, 11, 2, -1),
    Sketcher.Constraint("Parallel", 0, 3),
    Sketcher.Constraint("Parallel", 2, 5),
    Sketcher.Constraint("Parallel", 3, 6),
    Sketcher.Constraint("Parallel", 5, 8),
    Sketcher.Constraint("Parallel", 8, 11),
    Sketcher.Constraint("Horizontal", 1, 2, 3, 2),
    Sketcher.Constraint("Horizontal", 0, 2, 4, 2),
    Sketcher.Constraint("Angle", 0, Q("30 deg")),
    Sketcher.Constraint("DistanceX", 2, 2, 1, 2, Q("2 mm")),
    Sketcher.Constraint("DistanceY", 6, 2, 0, 2, Q("24.6 mm")),
    Sketcher.Constraint("DistanceY", 1, 1, 1, 2, Q("2.309401 mm")),
    Sketcher.Constraint("DistanceX", -1, 1, 0, 2, Q("39.186918 mm")),
])
pocket12 = body.newObject("PartDesign::Pocket", "Pocket011")
pocket12.Profile = sketch21
pocket12.Length = 1.7

sketch22 = body.newObject("Sketcher::SketchObject", "Sketch021")
sketch22.AttachmentSupport = (doc.getObject("XY_Plane"), [""])
sketch22.MapMode = "FlatFace"
sketch22.AttachmentOffset = App.Placement(App.Vector(0, 0, -9), App.Rotation())
add_polygon(sketch22, [(69, 101), (69, 14), (-67, 14), (-67, 101)])
sketch22.addConstraint([
    Sketcher.Constraint("Vertical", 0),
    Sketcher.Constraint("Horizontal", 1),
    Sketcher.Constraint("Vertical", 2),
    Sketcher.Constraint("Horizontal", 3),
    Sketcher.Constraint("DistanceY", -1, 1, 0, 2, Q("14 mm")),
    Sketcher.Constraint("DistanceX", 1, 2, 1, 1, Q("136.459261 mm")),
    Sketcher.Constraint("DistanceY", 0, 2, 0, 1, Q("86.542263 mm")),
    Sketcher.Constraint("DistanceX", -1, 1, 0, 2, Q("69.493309 mm")),
])
pocket13 = body.newObject("PartDesign::Pocket", "Pocket012")
pocket13.Profile = sketch22
pocket13.Type = "ThroughAll"
pocket13.Midplane = True

sketch23 = body.newObject("Sketcher::SketchObject", "Sketch022")
sketch23.AttachmentSupport = (doc.getObject("XZ_Plane"), [""])
sketch23.MapMode = "FlatFace"
sketch23.AttachmentOffset = App.Placement(App.Vector(0, 0, -14), App.Rotation())
sketch23.addGeometry([
    Part.Circle(App.Vector(30.2, 4.5, 0), App.Vector(0, 0, 1), 1.5),
    Part.Circle(App.Vector(30.2, -4.5, 0), App.Vector(0, 0, 1), 1.5),
    Part.Circle(App.Vector(-30.2, 4.5, 0), App.Vector(0, 0, 1), 1.5),
    Part.Circle(App.Vector(-30.2, -4.5, 0), App.Vector(0, 0, 1), 1.5),
], False)
sketch23.addConstraint([
    Sketcher.Constraint("Equal", 0, 1),
    Sketcher.Constraint("Equal", 1, 2),
    Sketcher.Constraint("Equal", 2, 3),
    Sketcher.Constraint("Symmetric", 1, 3, 2, 3, -1, 1),
    Sketcher.Constraint("Symmetric", 0, 3, 3, 3, -1, 1),
    Sketcher.Constraint("Symmetric", 0, 3, 2, 3, -2),
    Sketcher.Constraint("Diameter", 0, Q("3 mm")),
    Sketcher.Constraint("DistanceY", 1, 3, 0, 3, Q("9 mm")),
    Sketcher.Constraint("DistanceX", -1, 1, 0, 3, Q("30.186918 mm")),
])
pocket14 = body.newObject("PartDesign::Pocket", "Pocket013")
pocket14.Profile = sketch23
pocket14.Length = 100
pocket14.Reversed = True

sketch24 = body.newObject("Sketcher::SketchObject", "Sketch023")
sketch24.AttachmentSupport = (doc.getObject("XZ_Plane"), [""])
sketch24.MapMode = "FlatFace"
sketch24.AttachmentOffset = App.Placement(App.Vector(0, 0, -3.6), App.Rotation())
add_polygon(sketch24, [(27, -4.5), (28.6, -7.2), (31.8, -7.2), (33.4, -4.5), (31.8, -1.8), (28.6, -1.8)])
add_polygon(sketch24, [(27, 4.5), (28.6, 1.8), (31.8, 1.8), (33.4, 4.5), (31.8, 7.2), (28.6, 7.2)])
add_polygon(sketch24, [(-33.4, 4.5), (-31.8, 1.8), (-28.6, 1.8), (-27, 4.5), (-28.6, 7.2), (-31.8, 7.2)])
add_polygon(sketch24, [(-33.4, -4.5), (-31.8, -7.2), (-28.6, -7.2), (-27, -4.5), (-28.6, -1.8), (-31.8, -1.8)])
sketch24.addConstraint([
    Sketcher.Constraint("Horizontal", 1),
    Sketcher.Constraint("Horizontal", 4),
    Sketcher.Constraint("Horizontal", 7),
    Sketcher.Constraint("Horizontal", 10),
    Sketcher.Constraint("Horizontal", 13),
    Sketcher.Constraint("Horizontal", 16),
    Sketcher.Constraint("Horizontal", 19),
    Sketcher.Constraint("Horizontal", 22),
    Sketcher.Constraint("Symmetric", 3, 2, 12, 2, -1, 1),
    Sketcher.Constraint("Symmetric", 5, 2, 14, 2, -1, 1),
    Sketcher.Constraint("Symmetric", 0, 2, 15, 2, -1, 1),
    Sketcher.Constraint("Symmetric", 2, 2, 17, 2, -1, 1),
    Sketcher.Constraint("Symmetric", 9, 2, 18, 2, -1, 1),
    Sketcher.Constraint("Symmetric", 11, 2, 20, 2, -1, 1),
    Sketcher.Constraint("Symmetric", 6, 2, 21, 2, -1, 1),
    Sketcher.Constraint("Symmetric", 8, 2, 23, 2, -1, 1),
    Sketcher.Constraint("Symmetric", 7, 2, 12, 2, -2),
    Sketcher.Constraint("Symmetric", 11, 2, 14, 2, -2),
    Sketcher.Constraint("Symmetric", 10, 2, 15, 2, -2),
    Sketcher.Constraint("Symmetric", 8, 2, 17, 2, -2),
    Sketcher.Constraint("Parallel", 0, 3),
    Sketcher.Constraint("Parallel", 2, 5),
    Sketcher.Constraint("Parallel", 3, 6),
    Sketcher.Constraint("Parallel", 5, 8),
    Sketcher.Constraint("Parallel", 6, 9),
    Sketcher.Constraint("Parallel", 11, 14),
    Sketcher.Constraint("Parallel", 14, 17),
    Sketcher.Constraint("Parallel", 17, 20),
    Sketcher.Constraint("Parallel", 20, 23),
    Sketcher.Constraint("Horizontal", 2, 2, 5, 2),
    Sketcher.Constraint("Vertical", 1, 2, 3, 2),
    Sketcher.Constraint("Angle", 0, Q("-60 deg")),
    Sketcher.Constraint("DistanceY", 0, 2, 6, 2, Q("9 mm")),
    Sketcher.Constraint("DistanceY", 1, 2, 3, 2, Q("5.5 mm")),
    Sketcher.Constraint("DistanceX", 1, 1, 1, 2, Q("3.175426 mm")),
    Sketcher.Constraint("DistanceX", -1, 1, 1, 2, Q("31.774631 mm")),
])
pocket15 = body.newObject("PartDesign::Pocket", "Pocket014")
pocket15.Profile = sketch24
pocket15.Length = 5

doc.recompute()
